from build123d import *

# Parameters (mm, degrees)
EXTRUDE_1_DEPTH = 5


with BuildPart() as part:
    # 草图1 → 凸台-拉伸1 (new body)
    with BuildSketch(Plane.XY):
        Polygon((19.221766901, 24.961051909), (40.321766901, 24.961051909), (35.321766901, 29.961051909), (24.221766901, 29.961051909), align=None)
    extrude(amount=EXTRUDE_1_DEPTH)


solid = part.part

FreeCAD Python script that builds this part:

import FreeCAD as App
import Part
import Sketcher

V = App.Vector

doc = App.newDocument("Part")
body = doc.addObject("PartDesign::Body", "Body")

# Sketch on XY plane
sketch1 = doc.addObject("Sketcher::SketchObject", "Sketch")
body.addObject(sketch1)
sketch1.AttachmentSupport = (doc.XY_Plane, [""])
sketch1.MapMode = "FlatFace"
sketch1.addGeometry([
    Part.LineSegment(V(19.221767, 24.961052, 0), V(40.321767, 24.961052, 0)),
    Part.LineSegment(V(40.321767, 24.961052, 0), V(35.321767, 29.961052, 0)),
    Part.LineSegment(V(35.321767, 29.961052, 0), V(24.221767, 29.961052, 0)),
    Part.LineSegment(V(24.221767, 29.961052, 0), V(19.221767, 24.961052, 0)),
], False)
sketch1.addConstraint([
    Sketcher.Constraint("Coincident", 0, 2, 1, 1),
    Sketcher.Constraint("Coincident", 1, 2, 2, 1),
    Sketcher.Constraint("Coincident", 2, 2, 3, 1),
    Sketcher.Constraint("Coincident", 3, 2, 0, 1),
    Sketcher.Constraint("Horizontal", 0),
    Sketcher.Constraint("Horizontal", 2),
    Sketcher.Constraint("Perpendicular", 1, 3),
    Sketcher.Constraint("Equal", 1, 3),
    Sketcher.Constraint("DistanceX", 0, 1, 0, 2, 21.1),
    Sketcher.Constraint("DistanceX", 2, 2, 2, 1, 11.1),
    Sketcher.Constraint("DistanceY", -1, 1, 0, 2, 24.961052),
    Sketcher.Constraint("DistanceX", -1, 1, 0, 2, 40.321767),
])
pad1 = doc.addObject("PartDesign::Pad", "Pad")
body.addObject(pad1)
pad1.Profile = sketch1
pad1.Length = 5

doc.recompute()
